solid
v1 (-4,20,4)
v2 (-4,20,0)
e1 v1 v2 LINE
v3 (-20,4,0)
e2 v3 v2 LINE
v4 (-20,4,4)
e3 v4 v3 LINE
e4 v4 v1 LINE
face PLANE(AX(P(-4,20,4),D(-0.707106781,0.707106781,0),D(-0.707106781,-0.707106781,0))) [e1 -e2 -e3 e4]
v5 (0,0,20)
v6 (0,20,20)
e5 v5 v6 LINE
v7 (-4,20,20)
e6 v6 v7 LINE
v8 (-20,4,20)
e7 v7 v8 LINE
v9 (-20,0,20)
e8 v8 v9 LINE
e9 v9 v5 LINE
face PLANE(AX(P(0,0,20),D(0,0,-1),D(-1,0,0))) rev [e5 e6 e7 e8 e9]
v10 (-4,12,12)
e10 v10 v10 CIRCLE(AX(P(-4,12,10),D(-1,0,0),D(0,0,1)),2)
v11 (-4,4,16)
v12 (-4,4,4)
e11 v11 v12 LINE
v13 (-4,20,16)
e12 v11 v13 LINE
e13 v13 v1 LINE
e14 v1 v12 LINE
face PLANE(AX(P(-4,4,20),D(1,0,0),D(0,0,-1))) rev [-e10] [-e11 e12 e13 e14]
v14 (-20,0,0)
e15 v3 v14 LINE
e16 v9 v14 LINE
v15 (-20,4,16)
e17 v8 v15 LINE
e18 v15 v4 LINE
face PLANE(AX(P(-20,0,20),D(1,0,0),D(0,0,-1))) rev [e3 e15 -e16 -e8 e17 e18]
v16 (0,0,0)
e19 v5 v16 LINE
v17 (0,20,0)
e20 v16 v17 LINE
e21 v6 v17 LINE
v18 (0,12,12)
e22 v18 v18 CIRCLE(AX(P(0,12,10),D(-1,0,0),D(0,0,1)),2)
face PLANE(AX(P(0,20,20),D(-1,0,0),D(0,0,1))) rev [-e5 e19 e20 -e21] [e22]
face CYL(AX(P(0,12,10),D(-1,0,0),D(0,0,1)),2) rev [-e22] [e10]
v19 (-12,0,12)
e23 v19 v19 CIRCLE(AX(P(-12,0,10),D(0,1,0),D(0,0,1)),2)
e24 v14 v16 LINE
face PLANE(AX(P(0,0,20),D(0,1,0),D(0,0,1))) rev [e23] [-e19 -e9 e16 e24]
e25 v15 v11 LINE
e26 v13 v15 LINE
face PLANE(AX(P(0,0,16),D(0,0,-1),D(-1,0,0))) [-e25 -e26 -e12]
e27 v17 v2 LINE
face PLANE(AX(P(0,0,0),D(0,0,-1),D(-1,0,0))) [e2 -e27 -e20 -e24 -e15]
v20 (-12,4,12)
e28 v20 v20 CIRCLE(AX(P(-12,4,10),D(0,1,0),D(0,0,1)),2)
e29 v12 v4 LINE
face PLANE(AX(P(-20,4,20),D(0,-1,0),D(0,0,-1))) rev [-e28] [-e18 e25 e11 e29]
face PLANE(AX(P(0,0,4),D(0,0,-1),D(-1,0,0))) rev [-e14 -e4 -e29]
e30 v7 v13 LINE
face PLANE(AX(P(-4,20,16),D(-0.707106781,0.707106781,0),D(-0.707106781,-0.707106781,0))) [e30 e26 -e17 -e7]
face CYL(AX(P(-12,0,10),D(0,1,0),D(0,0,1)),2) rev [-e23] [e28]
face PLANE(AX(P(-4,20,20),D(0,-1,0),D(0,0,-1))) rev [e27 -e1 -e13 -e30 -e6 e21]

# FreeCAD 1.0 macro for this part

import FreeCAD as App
import Part
import Sketcher

V = App.Vector


def add_polygon(sketch, points):
    """Adds a closed chain of lines whose ends are joined by coincident constraints."""
    first, n = sketch.GeometryCount, len(points)
    for a, b in zip(points, points[1:] + points[:1]):
        sketch.addGeometry(Part.LineSegment(App.Vector(*a, 0), App.Vector(*b, 0)), False)
    for i in range(n):
        sketch.addConstraint(Sketcher.Constraint("Coincident", first + i, 2, first + (i + 1) % n, 1))

doc = App.newDocument("Part")
params = doc.addObject("Spreadsheet::Sheet", "Params")
for row, (alias, value) in enumerate([
    ("sketch1_width", "20 mm"),
    ("sketch1_width2", "4 mm"),
    ("pad1_length", "20 mm"),
    ("sketch2_width", "16 mm"),
    ("pad2_length", "4 mm"),
    ("sketch3_width", "16 mm"),
    ("pad3_length", "4 mm"),
    ("sketch4_diameter", "4 mm"),
    ("pocket1_length", "4 mm"),
    ("sketch5_diameter", "4 mm"),
    ("pocket2_length", "4 mm"),
], start=1):
    params.set(f"A{row}", alias)
    params.set(f"B{row}", "=" + value)
    params.setAlias(f"B{row}", alias)

body = doc.addObject("PartDesign::Body", "Body")

# Sketch on XY plane
sketch1 = body.newObject("Sketcher::SketchObject", "Sketch")
sketch1.AttachmentSupport = (doc.getObject("XY_Plane"), [""])
sketch1.MapMode = "FlatFace"
add_polygon(sketch1, [(-20, 0), (0, 0), (0, 20), (-4, 20), (-4, 4), (-20, 4)])  # lines 0-5
sketch1.addConstraint([
    Sketcher.Constraint("Horizontal", 0),
    Sketcher.Constraint("Vertical", 1),
    Sketcher.Constraint("Horizontal", 2),
    Sketcher.Constraint("Vertical", 3),
    Sketcher.Constraint("Horizontal", 4),
    Sketcher.Constraint("Vertical", 5),
    Sketcher.Constraint("Coincident", 0, 2, -1, 1),
    Sketcher.Constraint("Equal", 0, 1),
    Sketcher.Constraint("Equal", 4, 3),
    Sketcher.Constraint("DistanceX", 0, 1, 0, 2, 20.0),
    Sketcher.Constraint("DistanceX", 2, 2, 2, 1, 4.0),
])
sketch1.setExpression("Constraints[15]", "Params.sketch1_width")
sketch1.setExpression("Constraints[16]", "Params.sketch1_width2")
pad1 = body.newObject("PartDesign::Pad", "Pad")
pad1.Profile = sketch1
pad1.setExpression("Length", "Params.pad1_length")

# Sketch on XY plane
sketch2 = body.newObject("Sketcher::SketchObject", "Sketch001")
sketch2.AttachmentSupport = (doc.getObject("XY_Plane"), [""])
sketch2.MapMode = "FlatFace"
add_polygon(sketch2, [(-20, 4), (-4, 20), (-4, 4)])  # lines 0-2
sketch2.addConstraint([
    Sketcher.Constraint("Vertical", 1),
    Sketcher.Constraint("Horizontal", 2),
    Sketcher.Constraint("Equal", 2, 1),
    Sketcher.Constraint("DistanceX", 2, 2, 2, 1, 16.0),
    Sketcher.Constraint("DistanceX", 0, 2, -1, 1, 4.0),
    Sketcher.Constraint("DistanceY", -1, 1, 0, 2, 20.0),
])
sketch2.setExpression("Constraints[6]", "Params.sketch2_width")
pad2 = body.newObject("PartDesign::Pad", "Pad001")
pad2.Profile = sketch2
pad2.setExpression("Length", "Params.pad2_length")

# Sketch on XY plane
sketch3 = body.newObject("Sketcher::SketchObject", "Sketch002")
sketch3.AttachmentSupport = (doc.getObject("XY_Plane"), [""])
sketch3.MapMode = "FlatFace"
sketch3.AttachmentOffset = App.Placement(V(0, 0, 20), App.Rotation())
add_polygon(sketch3, [(-4, 20), (-20, 4), (-4, 4)])  # lines 0-2
sketch3.addConstraint([
    Sketcher.Constraint("Horizontal", 1),
    Sketcher.Constraint("Vertical", 2),
    Sketcher.Constraint("Equal", 1, 2),
    Sketcher.Constraint("DistanceX", 1, 1, 1, 2, 16.0),
    Sketcher.Constraint("DistanceX", 0, 2, -1, 1, 20.0),
    Sketcher.Constraint("DistanceY", -1, 1, 0, 2, 4.0),
])
sketch3.setExpression("Constraints[6]", "Params.sketch3_width")
pad3 = body.newObject("PartDesign::Pad", "Pad002")
pad3.Profile = sketch3
pad3.setExpression("Length", "Params.pad3_length")
pad3.Reversed = True

# Sketch on XZ plane
sketch4 = body.newObject("Sketcher::SketchObject", "Sketch003")
sketch4.AttachmentSupport = (doc.getObject("XZ_Plane"), [""])
sketch4.MapMode = "FlatFace"
sketch4.AttachmentOffset = App.Placement(V(0, 0, -4), App.Rotation())
sketch4.addGeometry(Part.Circle(V(-12, 10, 0), V(0, 0, 1), 2), False)
sketch4.addConstraint([
    Sketcher.Constraint("Diameter", 0, 4.0),
    Sketcher.Constraint("DistanceX", 0, 3, -1, 1, 12.0),
    Sketcher.Constraint("DistanceY", -1, 1, 0, 3, 10.0),
])
sketch4.setExpression("Constraints[0]", "Params.sketch4_diameter")
pocket1 = body.newObject("PartDesign::Pocket", "Pocket")
pocket1.Profile = sketch4
pocket1.setExpression("Length", "Params.pocket1_length")
pocket1.Reversed = True

# Sketch on YZ plane
sketch5 = body.newObject("Sketcher::SketchObject", "Sketch004")
sketch5.AttachmentSupport = (doc.getObject("YZ_Plane"), [""])
sketch5.MapMode = "FlatFace"
sketch5.AttachmentOffset = App.Placement(V(0, 0, -4), App.Rotation())
sketch5.addGeometry(Part.Circle(V(12, 10, 0), V(0, 0, 1), 2), False)
sketch5.addConstraint([
    Sketcher.Constraint("Diameter", 0, 4.0),
    Sketcher.Constraint("DistanceX", -1, 1, 0, 3, 12.0),
    Sketcher.Constraint("DistanceY", -1, 1, 0, 3, 10.0),
])
sketch5.setExpression("Constraints[0]", "Params.sketch5_diameter")
pocket2 = body.newObject("PartDesign::Pocket", "Pocket001")
pocket2.Profile = sketch5
pocket2.setExpression("Length", "Params.pocket2_length")
pocket2.Reversed = True

doc.recompute()
